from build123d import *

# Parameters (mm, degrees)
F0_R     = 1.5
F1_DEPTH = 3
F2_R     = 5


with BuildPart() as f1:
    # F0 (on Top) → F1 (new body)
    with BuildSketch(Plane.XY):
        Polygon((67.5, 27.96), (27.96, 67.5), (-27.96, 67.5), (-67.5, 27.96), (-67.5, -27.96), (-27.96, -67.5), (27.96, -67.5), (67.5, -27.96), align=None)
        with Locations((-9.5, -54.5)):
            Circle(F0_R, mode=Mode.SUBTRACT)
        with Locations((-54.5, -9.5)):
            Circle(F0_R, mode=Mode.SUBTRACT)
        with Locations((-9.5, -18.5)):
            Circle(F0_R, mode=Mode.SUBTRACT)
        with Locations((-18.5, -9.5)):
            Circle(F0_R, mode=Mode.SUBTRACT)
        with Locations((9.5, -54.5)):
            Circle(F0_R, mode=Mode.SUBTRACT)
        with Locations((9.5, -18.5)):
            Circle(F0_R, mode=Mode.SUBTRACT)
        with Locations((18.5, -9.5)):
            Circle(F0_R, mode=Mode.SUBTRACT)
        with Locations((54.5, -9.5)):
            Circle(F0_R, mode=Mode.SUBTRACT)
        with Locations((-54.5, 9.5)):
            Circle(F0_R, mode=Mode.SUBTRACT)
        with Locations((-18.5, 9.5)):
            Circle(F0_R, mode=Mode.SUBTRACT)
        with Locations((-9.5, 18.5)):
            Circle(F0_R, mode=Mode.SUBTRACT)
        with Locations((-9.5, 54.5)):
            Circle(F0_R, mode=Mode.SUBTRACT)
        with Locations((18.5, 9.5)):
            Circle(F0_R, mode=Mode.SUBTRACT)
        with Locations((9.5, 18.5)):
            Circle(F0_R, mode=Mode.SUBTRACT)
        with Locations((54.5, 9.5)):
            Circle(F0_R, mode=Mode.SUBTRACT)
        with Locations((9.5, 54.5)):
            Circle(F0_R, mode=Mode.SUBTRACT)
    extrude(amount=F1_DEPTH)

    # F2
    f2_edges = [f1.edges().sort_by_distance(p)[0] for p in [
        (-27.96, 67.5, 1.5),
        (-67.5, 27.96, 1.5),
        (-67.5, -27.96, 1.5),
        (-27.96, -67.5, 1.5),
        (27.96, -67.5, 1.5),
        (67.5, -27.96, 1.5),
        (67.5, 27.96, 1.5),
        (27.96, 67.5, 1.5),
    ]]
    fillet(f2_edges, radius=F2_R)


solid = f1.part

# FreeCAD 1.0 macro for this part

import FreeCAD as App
import Part
import Sketcher
from FreeCAD import Vector


def edges_at(feature, points):
    """Names of the edges that pass closest to the given points."""
    edges = feature.Shape.Edges
    near = lambda p: min(range(len(edges)), key=lambda i: edges[i].distToShape(Part.Vertex(*p))[0])
    return sorted({f"Edge{near(p) + 1}" for p in points})


def add_polygon(sketch, points):
    """Adds a closed chain of lines whose ends are joined by coincident constraints."""
    first, n = sketch.GeometryCount, len(points)
    for a, b in zip(points, points[1:] + points[:1]):
        sketch.addGeometry(Part.LineSegment(App.Vector(*a, 0), App.Vector(*b, 0)), False)
    for i in range(n):
        sketch.addConstraint(Sketcher.Constraint("Coincident", first + i, 2, first + (i + 1) % n, 1))

doc = App.newDocument("Part")
params = doc.addObject("Spreadsheet::Sheet", "Params")
for row, (alias, value) in enumerate([
    ("sketch1_diameter", "3 mm"),
    ("sketch1_width", "55.92 mm"),
    ("pad1_length", "3 mm"),
    ("fillet_radius", "5 mm"),
], start=1):
    params.set(f"A{row}", alias)
    params.set(f"B{row}", "=" + value)
    params.setAlias(f"B{row}", alias)

body = doc.addObject("PartDesign::Body", "Body")

sketch1 = doc.addObject("Sketcher::SketchObject", "Sketch")
body.addObject(sketch1)
sketch1.AttachmentSupport = (doc.XY_Plane, [""])
sketch1.MapMode = "FlatFace"
add_polygon(sketch1, [(67.5, 28), (28, 67.5), (-28, 67.5), (-67.5, 28), (-67.5, -28), (-28, -67.5), (28, -67.5), (67.5, -28)])
sketch1.addGeometry(Part.Circle(Vector(-9.5, -54.5, 0), Vector(0, 0, 1), 1.5), False)
sketch1.addGeometry(Part.Circle(Vector(-54.5, -9.5, 0), Vector(0, 0, 1), 1.5), False)
sketch1.addGeometry(Part.Circle(Vector(-9.5, -18.5, 0), Vector(0, 0, 1), 1.5), False)
sketch1.addGeometry(Part.Circle(Vector(-18.5, -9.5, 0), Vector(0, 0, 1), 1.5), False)
sketch1.addGeometry(Part.Circle(Vector(9.5, -54.5, 0), Vector(0, 0, 1), 1.5), False)
sketch1.addGeometry(Part.Circle(Vector(9.5, -18.5, 0), Vector(0, 0, 1), 1.5), False)
sketch1.addGeometry(Part.Circle(Vector(18.5, -9.5, 0), Vector(0, 0, 1), 1.5), False)
sketch1.addGeometry(Part.Circle(Vector(54.5, -9.5, 0), Vector(0, 0, 1), 1.5), False)
sketch1.addGeometry(Part.Circle(Vector(-54.5, 9.5, 0), Vector(0, 0, 1), 1.5), False)
sketch1.addGeometry(Part.Circle(Vector(-18.5, 9.5, 0), Vector(0, 0, 1), 1.5), False)
sketch1.addGeometry(Part.Circle(Vector(-9.5, 18.5, 0), Vector(0, 0, 1), 1.5), False)
sketch1.addGeometry(Part.Circle(Vector(-9.5, 54.5, 0), Vector(0, 0, 1), 1.5), False)
sketch1.addGeometry(Part.Circle(Vector(18.5, 9.5, 0), Vector(0, 0, 1), 1.5), False)
sketch1.addGeometry(Part.Circle(Vector(9.5, 18.5, 0), Vector(0, 0, 1), 1.5), False)
sketch1.addGeometry(Part.Circle(Vector(54.5, 9.5, 0), Vector(0, 0, 1), 1.5), False)
sketch1.addGeometry(Part.Circle(Vector(9.5, 54.5, 0), Vector(0, 0, 1), 1.5), False)
sketch1.addConstraint([
    Sketcher.Constraint("Horizontal", 1),
    Sketcher.Constraint("Vertical", 3),
    Sketcher.Constraint("Horizontal", 5),
    Sketcher.Constraint("Vertical", 7),
    Sketcher.Constraint("Equal", 8, 9),
    Sketcher.Constraint("Equal", 9, 10),
    Sketcher.Constraint("Equal", 10, 11),
    Sketcher.Constraint("Equal", 11, 12),
    Sketcher.Constraint("Equal", 12, 13),
    Sketcher.Constraint("Equal", 13, 14),
    Sketcher.Constraint("Equal", 14, 15),
    Sketcher.Constraint("Equal", 15, 16),
    Sketcher.Constraint("Equal", 16, 17),
    Sketcher.Constraint("Equal", 17, 18),
    Sketcher.Constraint("Equal", 18, 19),
    Sketcher.Constraint("Equal", 19, 20),
    Sketcher.Constraint("Equal", 20, 21),
    Sketcher.Constraint("Equal", 21, 22),
    Sketcher.Constraint("Equal", 22, 23),
    Sketcher.Constraint("Symmetric", 15, 3, 16, 3, -1, 1),
    Sketcher.Constraint("Symmetric", 14, 3, 17, 3, -1, 1),
    Sketcher.Constraint("Symmetric", 13, 3, 18, 3, -1, 1),
    Sketcher.Constraint("Symmetric", 12, 3, 19, 3, -1, 1),
    Sketcher.Constraint("Symmetric", 11, 3, 20, 3, -1, 1),
    Sketcher.Constraint("Symmetric", 10, 3, 21, 3, -1, 1),
    Sketcher.Constraint("Symmetric", 9, 3, 22, 3, -1, 1),
    Sketcher.Constraint("Symmetric", 8, 3, 23, 3, -1, 1),
    Sketcher.Constraint("Symmetric", 0, 2, 4, 2, -1, 1),
    Sketcher.Constraint("Symmetric", 2, 2, 6, 2, -1, 1),
    Sketcher.Constraint("Symmetric", 8, 3, 12, 3, -2),
    Sketcher.Constraint("Symmetric", 10, 3, 13, 3, -2),
    Sketcher.Constraint("Symmetric", 11, 3, 14, 3, -2),
    Sketcher.Constraint("Symmetric", 9, 3, 15, 3, -2),
    Sketcher.Constraint("Perpendicular", 0, 2),
    Sketcher.Constraint("Perpendicular", 2, 4),
    Sketcher.Constraint("Perpendicular", 4, 6),
    Sketcher.Constraint("Horizontal", 9, 3, 11, 3),
    Sketcher.Constraint("Horizontal", 3, 2, 6, 2),
    Sketcher.Constraint("Vertical", 8, 3, 10, 3),
    Sketcher.Constraint("Vertical", 1, 2, 4, 2),
    Sketcher.Constraint("Equal", 5, 3),
    Sketcher.Constraint("Diameter", 8, 3.0),
    Sketcher.Constraint("DistanceX", 9, 3, 8, 3, 45.0),
    Sketcher.Constraint("DistanceY", 8, 3, 9, 3, 45.0),
    Sketcher.Constraint("DistanceY", 8, 3, 10, 3, 36.0),
    Sketcher.Constraint("DistanceX", 11, 3, 10, 3, 9.0),
    Sketcher.Constraint("DistanceX", 8, 3, 12, 3, 19.0),
    Sketcher.Constraint("DistanceY", 9, 3, 16, 3, 19.0),
    Sketcher.Constraint("DistanceY", 23, 3, 0, 2, 13.0),
    Sketcher.Constraint("DistanceX", 1, 2, 1, 1, 55.92),
])
sketch1.setExpression("Constraints[49]", "Params.sketch1_diameter")
sketch1.setExpression("Constraints[57]", "Params.sketch1_width")
pad1 = doc.addObject("PartDesign::Pad", "Pad")
body.addObject(pad1)
pad1.Profile = sketch1
pad1.setExpression("Length", "Params.pad1_length")
doc.recompute()

fillet = doc.addObject("PartDesign::Fillet", "Fillet")
body.addObject(fillet)
fillet.Base = (pad1, edges_at(pad1, [
    (-27.96, 67.5, 1.5),
    (-67.5, 27.96, 1.5),
    (-67.5, -27.96, 1.5),
    (-27.96, -67.5, 1.5),
    (27.96, -67.5, 1.5),
    (67.5, -27.96, 1.5),
    (67.5, 27.96, 1.5),
    (27.96, 67.5, 1.5),
]))
fillet.setExpression("Radius", "Params.fillet_radius")

doc.recompute()
